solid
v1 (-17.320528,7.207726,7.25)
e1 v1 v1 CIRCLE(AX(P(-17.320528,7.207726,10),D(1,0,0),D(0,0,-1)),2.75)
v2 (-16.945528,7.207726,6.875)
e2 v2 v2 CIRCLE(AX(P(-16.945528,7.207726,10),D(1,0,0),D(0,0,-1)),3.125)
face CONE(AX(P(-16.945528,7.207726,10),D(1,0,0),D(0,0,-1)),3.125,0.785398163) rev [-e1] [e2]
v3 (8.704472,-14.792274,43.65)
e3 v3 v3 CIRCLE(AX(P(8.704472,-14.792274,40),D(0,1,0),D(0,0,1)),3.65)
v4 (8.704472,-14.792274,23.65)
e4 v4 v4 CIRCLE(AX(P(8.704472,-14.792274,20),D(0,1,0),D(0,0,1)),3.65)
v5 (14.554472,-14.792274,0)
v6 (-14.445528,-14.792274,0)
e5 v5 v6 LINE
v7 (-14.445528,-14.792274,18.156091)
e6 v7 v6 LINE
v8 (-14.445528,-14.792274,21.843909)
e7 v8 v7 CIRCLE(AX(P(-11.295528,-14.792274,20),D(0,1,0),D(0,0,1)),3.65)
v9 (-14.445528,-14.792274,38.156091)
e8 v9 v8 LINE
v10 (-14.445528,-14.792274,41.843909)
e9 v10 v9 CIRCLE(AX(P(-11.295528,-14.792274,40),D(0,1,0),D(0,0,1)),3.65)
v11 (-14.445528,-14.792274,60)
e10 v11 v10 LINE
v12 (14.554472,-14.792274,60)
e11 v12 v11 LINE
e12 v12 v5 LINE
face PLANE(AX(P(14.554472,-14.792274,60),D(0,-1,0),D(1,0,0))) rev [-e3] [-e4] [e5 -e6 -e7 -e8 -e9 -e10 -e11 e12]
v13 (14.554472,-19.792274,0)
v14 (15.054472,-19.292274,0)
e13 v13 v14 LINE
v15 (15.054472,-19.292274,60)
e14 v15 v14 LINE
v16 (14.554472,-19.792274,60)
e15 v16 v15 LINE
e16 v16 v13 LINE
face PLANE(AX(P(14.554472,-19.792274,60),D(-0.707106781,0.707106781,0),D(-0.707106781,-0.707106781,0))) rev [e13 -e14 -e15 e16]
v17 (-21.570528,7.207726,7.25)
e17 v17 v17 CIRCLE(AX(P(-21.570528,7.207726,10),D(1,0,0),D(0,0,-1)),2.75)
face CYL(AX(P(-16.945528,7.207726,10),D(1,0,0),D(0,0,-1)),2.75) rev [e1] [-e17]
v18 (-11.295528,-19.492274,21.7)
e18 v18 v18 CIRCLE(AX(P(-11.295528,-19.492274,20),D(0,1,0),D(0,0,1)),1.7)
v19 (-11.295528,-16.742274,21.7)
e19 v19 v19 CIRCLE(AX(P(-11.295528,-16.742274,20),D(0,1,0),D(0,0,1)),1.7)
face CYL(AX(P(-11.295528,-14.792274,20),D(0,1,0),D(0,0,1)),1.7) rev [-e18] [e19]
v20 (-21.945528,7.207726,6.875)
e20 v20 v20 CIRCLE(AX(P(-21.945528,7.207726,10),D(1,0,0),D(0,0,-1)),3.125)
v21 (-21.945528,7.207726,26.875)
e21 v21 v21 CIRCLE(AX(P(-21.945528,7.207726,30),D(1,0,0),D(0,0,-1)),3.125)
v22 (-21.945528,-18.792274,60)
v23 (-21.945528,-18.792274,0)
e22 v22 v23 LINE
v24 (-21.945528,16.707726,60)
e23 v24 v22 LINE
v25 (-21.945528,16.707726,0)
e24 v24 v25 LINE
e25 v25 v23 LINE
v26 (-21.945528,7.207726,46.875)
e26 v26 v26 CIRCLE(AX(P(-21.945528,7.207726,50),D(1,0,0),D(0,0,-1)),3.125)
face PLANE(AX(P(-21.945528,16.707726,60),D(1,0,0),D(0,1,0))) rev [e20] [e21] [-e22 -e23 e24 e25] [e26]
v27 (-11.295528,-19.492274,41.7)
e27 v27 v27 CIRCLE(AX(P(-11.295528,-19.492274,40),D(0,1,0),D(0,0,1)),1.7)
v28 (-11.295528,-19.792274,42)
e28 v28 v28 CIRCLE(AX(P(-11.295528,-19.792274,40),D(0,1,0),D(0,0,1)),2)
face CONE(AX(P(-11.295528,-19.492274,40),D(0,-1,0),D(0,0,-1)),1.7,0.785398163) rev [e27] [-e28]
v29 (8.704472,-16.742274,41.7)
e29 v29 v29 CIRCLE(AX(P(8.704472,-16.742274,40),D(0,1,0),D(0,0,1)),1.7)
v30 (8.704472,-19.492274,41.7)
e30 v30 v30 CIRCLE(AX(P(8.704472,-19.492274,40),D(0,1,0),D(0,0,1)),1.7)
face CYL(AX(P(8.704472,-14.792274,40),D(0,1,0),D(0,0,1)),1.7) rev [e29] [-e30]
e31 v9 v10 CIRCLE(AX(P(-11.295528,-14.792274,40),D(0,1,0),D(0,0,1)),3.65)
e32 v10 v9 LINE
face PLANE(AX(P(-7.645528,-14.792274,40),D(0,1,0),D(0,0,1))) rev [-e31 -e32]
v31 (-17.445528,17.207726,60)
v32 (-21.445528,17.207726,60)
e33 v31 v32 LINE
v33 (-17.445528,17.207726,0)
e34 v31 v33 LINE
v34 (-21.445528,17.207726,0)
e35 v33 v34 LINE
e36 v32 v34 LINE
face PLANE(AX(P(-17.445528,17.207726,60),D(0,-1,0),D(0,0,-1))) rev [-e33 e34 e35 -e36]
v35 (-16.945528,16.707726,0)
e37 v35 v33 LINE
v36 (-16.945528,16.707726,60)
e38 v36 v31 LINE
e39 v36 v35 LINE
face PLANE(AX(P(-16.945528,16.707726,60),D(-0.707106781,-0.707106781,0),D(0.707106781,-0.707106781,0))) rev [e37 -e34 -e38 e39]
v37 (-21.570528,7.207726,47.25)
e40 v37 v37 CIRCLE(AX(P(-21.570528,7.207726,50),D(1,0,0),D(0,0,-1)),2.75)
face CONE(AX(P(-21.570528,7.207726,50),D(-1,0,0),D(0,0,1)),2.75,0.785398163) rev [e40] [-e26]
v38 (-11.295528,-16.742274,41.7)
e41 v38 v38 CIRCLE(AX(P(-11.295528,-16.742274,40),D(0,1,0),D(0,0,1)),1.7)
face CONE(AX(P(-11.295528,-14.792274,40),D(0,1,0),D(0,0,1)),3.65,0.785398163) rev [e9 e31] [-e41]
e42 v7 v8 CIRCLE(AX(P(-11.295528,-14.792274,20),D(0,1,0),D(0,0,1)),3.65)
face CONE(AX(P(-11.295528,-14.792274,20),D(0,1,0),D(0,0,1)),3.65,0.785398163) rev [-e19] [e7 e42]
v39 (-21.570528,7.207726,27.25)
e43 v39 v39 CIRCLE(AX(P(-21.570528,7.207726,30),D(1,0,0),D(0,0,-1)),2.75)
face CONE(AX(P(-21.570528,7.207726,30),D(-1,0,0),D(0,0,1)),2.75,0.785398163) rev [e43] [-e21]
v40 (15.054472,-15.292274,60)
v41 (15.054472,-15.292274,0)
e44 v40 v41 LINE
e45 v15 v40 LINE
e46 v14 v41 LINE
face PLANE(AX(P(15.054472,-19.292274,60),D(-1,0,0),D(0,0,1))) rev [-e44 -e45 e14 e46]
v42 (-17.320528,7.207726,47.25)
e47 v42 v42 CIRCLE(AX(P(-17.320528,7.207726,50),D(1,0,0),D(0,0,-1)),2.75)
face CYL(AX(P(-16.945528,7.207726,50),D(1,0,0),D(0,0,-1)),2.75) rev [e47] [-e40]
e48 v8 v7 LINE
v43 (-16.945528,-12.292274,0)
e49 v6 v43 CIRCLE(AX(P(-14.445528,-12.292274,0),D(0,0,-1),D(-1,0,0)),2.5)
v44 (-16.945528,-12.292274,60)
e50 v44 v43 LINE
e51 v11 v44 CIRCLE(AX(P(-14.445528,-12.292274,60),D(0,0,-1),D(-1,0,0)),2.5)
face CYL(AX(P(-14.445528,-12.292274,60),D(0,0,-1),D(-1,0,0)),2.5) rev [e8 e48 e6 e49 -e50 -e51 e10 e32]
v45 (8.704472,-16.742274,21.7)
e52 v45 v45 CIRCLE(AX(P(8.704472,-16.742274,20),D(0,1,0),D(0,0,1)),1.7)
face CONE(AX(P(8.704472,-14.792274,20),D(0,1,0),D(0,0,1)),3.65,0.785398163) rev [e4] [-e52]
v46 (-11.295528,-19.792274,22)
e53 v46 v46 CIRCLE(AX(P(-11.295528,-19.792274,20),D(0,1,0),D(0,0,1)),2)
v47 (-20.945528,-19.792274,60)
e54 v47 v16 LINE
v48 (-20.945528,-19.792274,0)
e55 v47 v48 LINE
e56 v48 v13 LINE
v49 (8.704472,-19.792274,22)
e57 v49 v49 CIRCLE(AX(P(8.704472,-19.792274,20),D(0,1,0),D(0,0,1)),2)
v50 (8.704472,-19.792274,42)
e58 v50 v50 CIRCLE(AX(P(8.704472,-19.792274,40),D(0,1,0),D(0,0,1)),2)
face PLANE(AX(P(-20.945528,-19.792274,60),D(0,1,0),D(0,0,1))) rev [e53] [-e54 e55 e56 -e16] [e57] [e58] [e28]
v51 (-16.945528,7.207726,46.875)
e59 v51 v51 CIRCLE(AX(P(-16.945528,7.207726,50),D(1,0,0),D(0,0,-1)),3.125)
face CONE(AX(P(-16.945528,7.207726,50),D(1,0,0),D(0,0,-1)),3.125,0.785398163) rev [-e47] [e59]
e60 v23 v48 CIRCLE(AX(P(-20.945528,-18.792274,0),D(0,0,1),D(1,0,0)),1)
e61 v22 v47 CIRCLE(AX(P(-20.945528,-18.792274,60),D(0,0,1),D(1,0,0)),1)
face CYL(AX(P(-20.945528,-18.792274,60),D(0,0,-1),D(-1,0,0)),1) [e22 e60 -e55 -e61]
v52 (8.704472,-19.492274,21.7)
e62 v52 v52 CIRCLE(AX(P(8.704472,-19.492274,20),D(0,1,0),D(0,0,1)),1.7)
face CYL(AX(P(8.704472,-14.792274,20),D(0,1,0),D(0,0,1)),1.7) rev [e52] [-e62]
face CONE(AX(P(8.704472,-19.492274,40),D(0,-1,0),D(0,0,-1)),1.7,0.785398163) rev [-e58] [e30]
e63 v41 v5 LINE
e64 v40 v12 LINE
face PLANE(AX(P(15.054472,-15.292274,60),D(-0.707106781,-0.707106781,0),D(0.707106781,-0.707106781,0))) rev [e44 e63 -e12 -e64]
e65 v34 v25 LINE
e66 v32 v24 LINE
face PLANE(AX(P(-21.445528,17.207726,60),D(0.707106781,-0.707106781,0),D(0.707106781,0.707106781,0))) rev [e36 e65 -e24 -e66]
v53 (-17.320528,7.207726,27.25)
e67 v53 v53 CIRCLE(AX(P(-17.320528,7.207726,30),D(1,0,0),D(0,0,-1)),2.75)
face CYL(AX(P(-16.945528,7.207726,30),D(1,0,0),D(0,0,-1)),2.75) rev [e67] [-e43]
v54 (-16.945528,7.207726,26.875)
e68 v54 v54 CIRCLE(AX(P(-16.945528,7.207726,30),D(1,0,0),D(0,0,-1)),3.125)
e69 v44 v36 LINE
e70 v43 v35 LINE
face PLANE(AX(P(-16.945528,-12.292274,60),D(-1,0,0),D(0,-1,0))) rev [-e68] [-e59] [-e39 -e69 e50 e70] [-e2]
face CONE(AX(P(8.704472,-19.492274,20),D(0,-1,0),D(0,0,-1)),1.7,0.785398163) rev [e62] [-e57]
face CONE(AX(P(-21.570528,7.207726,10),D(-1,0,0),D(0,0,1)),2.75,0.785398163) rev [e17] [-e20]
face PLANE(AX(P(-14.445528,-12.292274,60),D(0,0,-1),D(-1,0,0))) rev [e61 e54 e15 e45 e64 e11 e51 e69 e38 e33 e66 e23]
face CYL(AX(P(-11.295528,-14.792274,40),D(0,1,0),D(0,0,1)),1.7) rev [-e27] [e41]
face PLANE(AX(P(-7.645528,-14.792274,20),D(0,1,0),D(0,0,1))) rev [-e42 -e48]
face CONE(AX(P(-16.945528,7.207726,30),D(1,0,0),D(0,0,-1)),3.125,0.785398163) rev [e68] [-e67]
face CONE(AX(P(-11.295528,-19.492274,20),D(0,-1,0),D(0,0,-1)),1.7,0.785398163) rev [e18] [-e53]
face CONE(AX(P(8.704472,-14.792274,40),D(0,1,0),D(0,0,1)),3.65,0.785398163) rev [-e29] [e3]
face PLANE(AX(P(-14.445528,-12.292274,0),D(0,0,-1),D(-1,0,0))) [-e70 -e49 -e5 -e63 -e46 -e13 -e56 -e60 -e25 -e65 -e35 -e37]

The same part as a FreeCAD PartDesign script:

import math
import FreeCAD as App
import Part
import Sketcher
from FreeCAD import Vector
Q = App.Units.Quantity

doc = App.newDocument("Part")
params = doc.addObject("Spreadsheet::Sheet", "Params")
for row, (alias, value) in enumerate([
    ("sketch1_radius", "1 mm"),
    ("sketch1_radius2", "2.5 mm"),
    ("sketch1_width", "29 mm"),
    ("sketch1_width2", "4 mm"),
    ("sketch1_width3", "35.5 mm"),
    ("pad1_length", "60 mm"),
    ("sketch2_width", "5 mm"),
    ("sketch2_height", "2 mm"),
    ("sketch2_width2", "2.75 mm"),
    ("sketch2_height2", "3.65 mm"),
    ("groove_angle", "360 deg"),
    ("linearpattern_pitch", "20 mm"),
    ("linearpattern2_pitch", "28.284271 mm"),
    ("linearpattern3_pitch", "20 mm"),
    ("sketch3_width", "5 mm"),
    ("sketch3_width2", "4.25 mm"),
    ("groove2_angle", "360 deg"),
    ("linearpattern4_pitch", "20 mm"),
    ("linearpattern5_pitch", "40 mm"),
], start=1):
    params.set(f"A{row}", alias)
    params.set(f"B{row}", "=" + value)
    params.setAlias(f"B{row}", alias)

body = doc.addObject("PartDesign::Body", "Body")

# Sketch on XY plane
sketch1 = body.newObject("Sketcher::SketchObject", "Sketch")
sketch1.AttachmentSupport = (doc.getObject("XY_Plane"), [""])
sketch1.MapMode = "FlatFace"
sketch1.addGeometry([
    Part.LineSegment(Vector(-21.9, 16.7, 0), Vector(-21.9, -18.8, 0)),  # 0
    Part.ArcOfCircle(Part.Circle(Vector(-20.9, -18.8, 0), Vector(0, 0, 1), 1), math.radians(-180), math.radians(-90)),  # 1
    Part.LineSegment(Vector(-20.9, -19.8, 0), Vector(14.6, -19.8, 0)),  # 2
    Part.LineSegment(Vector(14.6, -19.8, 0), Vector(15.1, -19.3, 0)),  # 3
    Part.LineSegment(Vector(15.1, -19.3, 0), Vector(15.1, -15.3, 0)),  # 4
    Part.LineSegment(Vector(15.1, -15.3, 0), Vector(14.6, -14.8, 0)),  # 5
    Part.LineSegment(Vector(14.6, -14.8, 0), Vector(-14.4, -14.8, 0)),  # 6
    Part.ArcOfCircle(Part.Circle(Vector(-14.4, -12.3, 0), Vector(0, 0, 1), 2.5), math.radians(180), math.radians(270)),  # 7
    Part.LineSegment(Vector(-16.9, -12.3, 0), Vector(-16.9, 16.7, 0)),  # 8
    Part.LineSegment(Vector(-16.9, 16.7, 0), Vector(-17.4, 17.2, 0)),  # 9
    Part.LineSegment(Vector(-17.4, 17.2, 0), Vector(-21.4, 17.2, 0)),  # 10
    Part.LineSegment(Vector(-21.4, 17.2, 0), Vector(-21.9, 16.7, 0)),  # 11
], False)
sketch1.addConstraint([
    Sketcher.Constraint("Tangent", 0, 2, 1, 1),
    Sketcher.Constraint("Tangent", 1, 2, 2, 1),
    Sketcher.Constraint("Coincident", 2, 2, 3, 1),
    Sketcher.Constraint("Coincident", 3, 2, 4, 1),
    Sketcher.Constraint("Coincident", 4, 2, 5, 1),
    Sketcher.Constraint("Coincident", 5, 2, 6, 1),
    Sketcher.Constraint("Tangent", 6, 2, 7, 2),
    Sketcher.Constraint("Tangent", 7, 1, 8, 1),
    Sketcher.Constraint("Coincident", 8, 2, 9, 1),
    Sketcher.Constraint("Coincident", 9, 2, 10, 1),
    Sketcher.Constraint("Coincident", 10, 2, 11, 1),
    Sketcher.Constraint("Coincident", 11, 2, 0, 1),
    Sketcher.Constraint("Vertical", 0),
    Sketcher.Constraint("Horizontal", 2),
    Sketcher.Constraint("Vertical", 4),
    Sketcher.Constraint("Horizontal", 6),
    Sketcher.Constraint("Vertical", 8),
    Sketcher.Constraint("Horizontal", 10),
    Sketcher.Constraint("Perpendicular", 3, 5),
    Sketcher.Constraint("Parallel", 5, 9),
    Sketcher.Constraint("Perpendicular", 9, 11),
    Sketcher.Constraint("Horizontal", 8, 2, 11, 2),
    Sketcher.Constraint("Vertical", 2, 2, 5, 2),
    Sketcher.Constraint("Equal", 2, 0),
    Sketcher.Constraint("Equal", 10, 4),
    Sketcher.Constraint("Equal", 6, 8),
    Sketcher.Constraint("Equal", 3, 5),
    Sketcher.Constraint("Radius", 1, 1.0),
    Sketcher.Constraint("Radius", 7, 2.5),
    Sketcher.Constraint("DistanceX", 6, 2, 6, 1, 29.0),
    Sketcher.Constraint("DistanceX", 10, 2, 10, 1, 4.0),
    Sketcher.Constraint("DistanceX", 2, 1, 2, 2, 35.5),
    Sketcher.Constraint("DistanceX", 1, 3, -1, 1, 20.945528),
    Sketcher.Constraint("DistanceY", 1, 3, -1, 1, 18.792274),
])
sketch1.setExpression("Constraints[27]", "Params.sketch1_radius")
sketch1.setExpression("Constraints[28]", "Params.sketch1_radius2")
sketch1.setExpression("Constraints[29]", "Params.sketch1_width")
sketch1.setExpression("Constraints[30]", "Params.sketch1_width2")
sketch1.setExpression("Constraints[31]", "Params.sketch1_width3")
pad1 = body.newObject("PartDesign::Pad", "Pad")
pad1.Profile = sketch1
pad1.setExpression("Length", "Params.pad1_length")

# Sketch on YZ plane
sketch2 = body.newObject("Sketcher::SketchObject", "Sketch001")
sketch2.AttachmentSupport = (doc.getObject("YZ_Plane"), [""])
sketch2.MapMode = "FlatFace"
sketch2.AttachmentOffset = App.Placement(Vector(0, 0, -11.295528), App.Rotation())
sketch2.addGeometry([
    Part.LineSegment(Vector(-19.79, 40, 0), Vector(-14.79, 40, 0)),  # 0
    Part.LineSegment(Vector(-14.79, 40, 0), Vector(-14.79, 43.65, 0)),  # 1
    Part.LineSegment(Vector(-14.79, 43.65, 0), Vector(-16.74, 41.7, 0)),  # 2
    Part.LineSegment(Vector(-16.74, 41.7, 0), Vector(-19.49, 41.7, 0)),  # 3
    Part.LineSegment(Vector(-19.49, 41.7, 0), Vector(-19.79, 42, 0)),  # 4
    Part.LineSegment(Vector(-19.79, 42, 0), Vector(-19.79, 40, 0)),  # 5
], False)
sketch2.addGeometry(Part.LineSegment(Vector(-14.79, 40, 0), Vector(-19.79, 40, 0)), True)  # axis
sketch2.addConstraint([
    Sketcher.Constraint("Coincident", 0, 2, 1, 1),
    Sketcher.Constraint("Coincident", 1, 2, 2, 1),
    Sketcher.Constraint("Coincident", 2, 2, 3, 1),
    Sketcher.Constraint("Coincident", 3, 2, 4, 1),
    Sketcher.Constraint("Coincident", 4, 2, 5, 1),
    Sketcher.Constraint("Coincident", 5, 2, 0, 1),
    Sketcher.Constraint("Horizontal", 0),
    Sketcher.Constraint("Vertical", 1),
    Sketcher.Constraint("Horizontal", 3),
    Sketcher.Constraint("Vertical", 5),
    Sketcher.Constraint("Horizontal", 6),
    Sketcher.Constraint("Coincident", 6, 1, 0, 2),
    Sketcher.Constraint("Perpendicular", 2, 4),
    Sketcher.Constraint("Vertical", 4, 2, 6, 2),
    Sketcher.Constraint("DistanceX", 0, 1, 0, 2, 5.0),
    Sketcher.Constraint("DistanceY", 5, 2, 5, 1, 2.0),
    Sketcher.Constraint("Angle", 2, Q("-135 deg")),
    Sketcher.Constraint("DistanceY", -1, 1, 0, 2, 40.0),
    Sketcher.Constraint("DistanceX", 3, 2, 3, 1, 2.75),
    Sketcher.Constraint("DistanceY", 1, 1, 1, 2, 3.65),
    Sketcher.Constraint("DistanceX", 0, 2, -1, 1, 14.792274),
])
sketch2.setExpression("Constraints[14]", "Params.sketch2_width")
sketch2.setExpression("Constraints[15]", "Params.sketch2_height")
sketch2.setExpression("Constraints[18]", "Params.sketch2_width2")
sketch2.setExpression("Constraints[19]", "Params.sketch2_height2")
groove = body.newObject("PartDesign::Groove", "Groove")
groove.Profile = sketch2
groove.ReferenceAxis = (sketch2, ["Axis0"])
groove.setExpression("Angle", "Params.groove_angle")
doc.recompute()

linearpattern = body.newObject("PartDesign::LinearPattern", "LinearPattern")
linearpattern.Originals = [groove]
linearpattern.Direction = (doc.getObject("X_Axis"), [""])
linearpattern.Mode = "offset"
linearpattern.setExpression("Offset", "Params.linearpattern_pitch")
linearpattern.Occurrences = 2
body.Tip = linearpattern
doc.recompute()

datumline = body.newObject("PartDesign::Line", "DatumLine")
datumline.Placement = App.Placement(Vector(0, 0, 0), App.Rotation(Vector(0, 0, 1), Vector(0.707106781, 0, -0.707106781)))
linearpattern2 = body.newObject("PartDesign::LinearPattern", "LinearPattern001")
linearpattern2.Originals = [groove]
linearpattern2.Direction = (datumline, [""])
linearpattern2.Mode = "offset"
linearpattern2.setExpression("Offset", "Params.linearpattern2_pitch")
linearpattern2.Occurrences = 2
body.Tip = linearpattern2
doc.recompute()

linearpattern3 = body.newObject("PartDesign::LinearPattern", "LinearPattern002")
linearpattern3.Originals = [groove]
linearpattern3.Direction = (doc.getObject("Z_Axis"), [""])
linearpattern3.Mode = "offset"
linearpattern3.setExpression("Offset", "Params.linearpattern3_pitch")
linearpattern3.Occurrences = 2
linearpattern3.Reversed = True
body.Tip = linearpattern3

# Sketch on XZ plane
sketch3 = body.newObject("Sketcher::SketchObject", "Sketch002")
sketch3.AttachmentSupport = (doc.getObject("XZ_Plane"), [""])
sketch3.MapMode = "FlatFace"
sketch3.AttachmentOffset = App.Placement(Vector(0, 0, -7.207726), App.Rotation())
sketch3.addGeometry([
    Part.LineSegment(Vector(-21.9, 50, 0), Vector(-16.9, 50, 0)),  # 0
    Part.LineSegment(Vector(-16.9, 50, 0), Vector(-16.9, 46.9, 0)),  # 1
    Part.LineSegment(Vector(-16.9, 46.9, 0), Vector(-17.3, 47.2, 0)),  # 2
    Part.LineSegment(Vector(-17.3, 47.2, 0), Vector(-21.6, 47.2, 0)),  # 3
    Part.LineSegment(Vector(-21.6, 47.2, 0), Vector(-21.9, 46.9, 0)),  # 4
    Part.LineSegment(Vector(-21.9, 46.9, 0), Vector(-21.9, 50, 0)),  # 5
], False)
sketch3.addGeometry(Part.LineSegment(Vector(-16.9, 50, 0), Vector(-21.9, 50, 0)), True)  # axis
sketch3.addConstraint([
    Sketcher.Constraint("Coincident", 0, 2, 1, 1),
    Sketcher.Constraint("Coincident", 1, 2, 2, 1),
    Sketcher.Constraint("Coincident", 2, 2, 3, 1),
    Sketcher.Constraint("Coincident", 3, 2, 4, 1),
    Sketcher.Constraint("Coincident", 4, 2, 5, 1),
    Sketcher.Constraint("Coincident", 5, 2, 0, 1),
    Sketcher.Constraint("Horizontal", 0),
    Sketcher.Constraint("Vertical", 1),
    Sketcher.Constraint("Horizontal", 3),
    Sketcher.Constraint("Vertical", 5),
    Sketcher.Constraint("Horizontal", 6),
    Sketcher.Constraint("Coincident", 6, 1, 0, 2),
    Sketcher.Constraint("Perpendicular", 2, 4),
    Sketcher.Constraint("Horizontal", 1, 2, 4, 2),
    Sketcher.Constraint("Vertical", 4, 2, 6, 2),
    Sketcher.Constraint("Equal", 2, 4),
    Sketcher.Constraint("DistanceX", 0, 1, 0, 2, 5.0),
    Sketcher.Constraint("DistanceY", -1, 1, 0, 2, 50.0),
    Sketcher.Constraint("DistanceX", 3, 2, 3, 1, 4.25),
    Sketcher.Constraint("DistanceY", 1, 2, 1, 1, 3.125),
    Sketcher.Constraint("DistanceX", 0, 2, -1, 1, 16.945528),
])
sketch3.setExpression("Constraints[16]", "Params.sketch3_width")
sketch3.setExpression("Constraints[18]", "Params.sketch3_width2")
groove2 = body.newObject("PartDesign::Groove", "Groove001")
groove2.Profile = sketch3
groove2.ReferenceAxis = (sketch3, ["Axis0"])
groove2.setExpression("Angle", "Params.groove2_angle")
doc.recompute()

linearpattern4 = body.newObject("PartDesign::LinearPattern", "LinearPattern003")
linearpattern4.Originals = [groove2]
linearpattern4.Direction = (doc.getObject("Z_Axis"), [""])
linearpattern4.Mode = "offset"
linearpattern4.setExpression("Offset", "Params.linearpattern4_pitch")
linearpattern4.Occurrences = 2
linearpattern4.Reversed = True
body.Tip = linearpattern4
doc.recompute()

linearpattern5 = body.newObject("PartDesign::LinearPattern", "LinearPattern004")
linearpattern5.Originals = [groove2]
linearpattern5.Direction = (doc.getObject("Z_Axis"), [""])
linearpattern5.Mode = "offset"
linearpattern5.setExpression("Offset", "Params.linearpattern5_pitch")
linearpattern5.Occurrences = 2
linearpattern5.Reversed = True
body.Tip = linearpattern5

doc.recompute()
